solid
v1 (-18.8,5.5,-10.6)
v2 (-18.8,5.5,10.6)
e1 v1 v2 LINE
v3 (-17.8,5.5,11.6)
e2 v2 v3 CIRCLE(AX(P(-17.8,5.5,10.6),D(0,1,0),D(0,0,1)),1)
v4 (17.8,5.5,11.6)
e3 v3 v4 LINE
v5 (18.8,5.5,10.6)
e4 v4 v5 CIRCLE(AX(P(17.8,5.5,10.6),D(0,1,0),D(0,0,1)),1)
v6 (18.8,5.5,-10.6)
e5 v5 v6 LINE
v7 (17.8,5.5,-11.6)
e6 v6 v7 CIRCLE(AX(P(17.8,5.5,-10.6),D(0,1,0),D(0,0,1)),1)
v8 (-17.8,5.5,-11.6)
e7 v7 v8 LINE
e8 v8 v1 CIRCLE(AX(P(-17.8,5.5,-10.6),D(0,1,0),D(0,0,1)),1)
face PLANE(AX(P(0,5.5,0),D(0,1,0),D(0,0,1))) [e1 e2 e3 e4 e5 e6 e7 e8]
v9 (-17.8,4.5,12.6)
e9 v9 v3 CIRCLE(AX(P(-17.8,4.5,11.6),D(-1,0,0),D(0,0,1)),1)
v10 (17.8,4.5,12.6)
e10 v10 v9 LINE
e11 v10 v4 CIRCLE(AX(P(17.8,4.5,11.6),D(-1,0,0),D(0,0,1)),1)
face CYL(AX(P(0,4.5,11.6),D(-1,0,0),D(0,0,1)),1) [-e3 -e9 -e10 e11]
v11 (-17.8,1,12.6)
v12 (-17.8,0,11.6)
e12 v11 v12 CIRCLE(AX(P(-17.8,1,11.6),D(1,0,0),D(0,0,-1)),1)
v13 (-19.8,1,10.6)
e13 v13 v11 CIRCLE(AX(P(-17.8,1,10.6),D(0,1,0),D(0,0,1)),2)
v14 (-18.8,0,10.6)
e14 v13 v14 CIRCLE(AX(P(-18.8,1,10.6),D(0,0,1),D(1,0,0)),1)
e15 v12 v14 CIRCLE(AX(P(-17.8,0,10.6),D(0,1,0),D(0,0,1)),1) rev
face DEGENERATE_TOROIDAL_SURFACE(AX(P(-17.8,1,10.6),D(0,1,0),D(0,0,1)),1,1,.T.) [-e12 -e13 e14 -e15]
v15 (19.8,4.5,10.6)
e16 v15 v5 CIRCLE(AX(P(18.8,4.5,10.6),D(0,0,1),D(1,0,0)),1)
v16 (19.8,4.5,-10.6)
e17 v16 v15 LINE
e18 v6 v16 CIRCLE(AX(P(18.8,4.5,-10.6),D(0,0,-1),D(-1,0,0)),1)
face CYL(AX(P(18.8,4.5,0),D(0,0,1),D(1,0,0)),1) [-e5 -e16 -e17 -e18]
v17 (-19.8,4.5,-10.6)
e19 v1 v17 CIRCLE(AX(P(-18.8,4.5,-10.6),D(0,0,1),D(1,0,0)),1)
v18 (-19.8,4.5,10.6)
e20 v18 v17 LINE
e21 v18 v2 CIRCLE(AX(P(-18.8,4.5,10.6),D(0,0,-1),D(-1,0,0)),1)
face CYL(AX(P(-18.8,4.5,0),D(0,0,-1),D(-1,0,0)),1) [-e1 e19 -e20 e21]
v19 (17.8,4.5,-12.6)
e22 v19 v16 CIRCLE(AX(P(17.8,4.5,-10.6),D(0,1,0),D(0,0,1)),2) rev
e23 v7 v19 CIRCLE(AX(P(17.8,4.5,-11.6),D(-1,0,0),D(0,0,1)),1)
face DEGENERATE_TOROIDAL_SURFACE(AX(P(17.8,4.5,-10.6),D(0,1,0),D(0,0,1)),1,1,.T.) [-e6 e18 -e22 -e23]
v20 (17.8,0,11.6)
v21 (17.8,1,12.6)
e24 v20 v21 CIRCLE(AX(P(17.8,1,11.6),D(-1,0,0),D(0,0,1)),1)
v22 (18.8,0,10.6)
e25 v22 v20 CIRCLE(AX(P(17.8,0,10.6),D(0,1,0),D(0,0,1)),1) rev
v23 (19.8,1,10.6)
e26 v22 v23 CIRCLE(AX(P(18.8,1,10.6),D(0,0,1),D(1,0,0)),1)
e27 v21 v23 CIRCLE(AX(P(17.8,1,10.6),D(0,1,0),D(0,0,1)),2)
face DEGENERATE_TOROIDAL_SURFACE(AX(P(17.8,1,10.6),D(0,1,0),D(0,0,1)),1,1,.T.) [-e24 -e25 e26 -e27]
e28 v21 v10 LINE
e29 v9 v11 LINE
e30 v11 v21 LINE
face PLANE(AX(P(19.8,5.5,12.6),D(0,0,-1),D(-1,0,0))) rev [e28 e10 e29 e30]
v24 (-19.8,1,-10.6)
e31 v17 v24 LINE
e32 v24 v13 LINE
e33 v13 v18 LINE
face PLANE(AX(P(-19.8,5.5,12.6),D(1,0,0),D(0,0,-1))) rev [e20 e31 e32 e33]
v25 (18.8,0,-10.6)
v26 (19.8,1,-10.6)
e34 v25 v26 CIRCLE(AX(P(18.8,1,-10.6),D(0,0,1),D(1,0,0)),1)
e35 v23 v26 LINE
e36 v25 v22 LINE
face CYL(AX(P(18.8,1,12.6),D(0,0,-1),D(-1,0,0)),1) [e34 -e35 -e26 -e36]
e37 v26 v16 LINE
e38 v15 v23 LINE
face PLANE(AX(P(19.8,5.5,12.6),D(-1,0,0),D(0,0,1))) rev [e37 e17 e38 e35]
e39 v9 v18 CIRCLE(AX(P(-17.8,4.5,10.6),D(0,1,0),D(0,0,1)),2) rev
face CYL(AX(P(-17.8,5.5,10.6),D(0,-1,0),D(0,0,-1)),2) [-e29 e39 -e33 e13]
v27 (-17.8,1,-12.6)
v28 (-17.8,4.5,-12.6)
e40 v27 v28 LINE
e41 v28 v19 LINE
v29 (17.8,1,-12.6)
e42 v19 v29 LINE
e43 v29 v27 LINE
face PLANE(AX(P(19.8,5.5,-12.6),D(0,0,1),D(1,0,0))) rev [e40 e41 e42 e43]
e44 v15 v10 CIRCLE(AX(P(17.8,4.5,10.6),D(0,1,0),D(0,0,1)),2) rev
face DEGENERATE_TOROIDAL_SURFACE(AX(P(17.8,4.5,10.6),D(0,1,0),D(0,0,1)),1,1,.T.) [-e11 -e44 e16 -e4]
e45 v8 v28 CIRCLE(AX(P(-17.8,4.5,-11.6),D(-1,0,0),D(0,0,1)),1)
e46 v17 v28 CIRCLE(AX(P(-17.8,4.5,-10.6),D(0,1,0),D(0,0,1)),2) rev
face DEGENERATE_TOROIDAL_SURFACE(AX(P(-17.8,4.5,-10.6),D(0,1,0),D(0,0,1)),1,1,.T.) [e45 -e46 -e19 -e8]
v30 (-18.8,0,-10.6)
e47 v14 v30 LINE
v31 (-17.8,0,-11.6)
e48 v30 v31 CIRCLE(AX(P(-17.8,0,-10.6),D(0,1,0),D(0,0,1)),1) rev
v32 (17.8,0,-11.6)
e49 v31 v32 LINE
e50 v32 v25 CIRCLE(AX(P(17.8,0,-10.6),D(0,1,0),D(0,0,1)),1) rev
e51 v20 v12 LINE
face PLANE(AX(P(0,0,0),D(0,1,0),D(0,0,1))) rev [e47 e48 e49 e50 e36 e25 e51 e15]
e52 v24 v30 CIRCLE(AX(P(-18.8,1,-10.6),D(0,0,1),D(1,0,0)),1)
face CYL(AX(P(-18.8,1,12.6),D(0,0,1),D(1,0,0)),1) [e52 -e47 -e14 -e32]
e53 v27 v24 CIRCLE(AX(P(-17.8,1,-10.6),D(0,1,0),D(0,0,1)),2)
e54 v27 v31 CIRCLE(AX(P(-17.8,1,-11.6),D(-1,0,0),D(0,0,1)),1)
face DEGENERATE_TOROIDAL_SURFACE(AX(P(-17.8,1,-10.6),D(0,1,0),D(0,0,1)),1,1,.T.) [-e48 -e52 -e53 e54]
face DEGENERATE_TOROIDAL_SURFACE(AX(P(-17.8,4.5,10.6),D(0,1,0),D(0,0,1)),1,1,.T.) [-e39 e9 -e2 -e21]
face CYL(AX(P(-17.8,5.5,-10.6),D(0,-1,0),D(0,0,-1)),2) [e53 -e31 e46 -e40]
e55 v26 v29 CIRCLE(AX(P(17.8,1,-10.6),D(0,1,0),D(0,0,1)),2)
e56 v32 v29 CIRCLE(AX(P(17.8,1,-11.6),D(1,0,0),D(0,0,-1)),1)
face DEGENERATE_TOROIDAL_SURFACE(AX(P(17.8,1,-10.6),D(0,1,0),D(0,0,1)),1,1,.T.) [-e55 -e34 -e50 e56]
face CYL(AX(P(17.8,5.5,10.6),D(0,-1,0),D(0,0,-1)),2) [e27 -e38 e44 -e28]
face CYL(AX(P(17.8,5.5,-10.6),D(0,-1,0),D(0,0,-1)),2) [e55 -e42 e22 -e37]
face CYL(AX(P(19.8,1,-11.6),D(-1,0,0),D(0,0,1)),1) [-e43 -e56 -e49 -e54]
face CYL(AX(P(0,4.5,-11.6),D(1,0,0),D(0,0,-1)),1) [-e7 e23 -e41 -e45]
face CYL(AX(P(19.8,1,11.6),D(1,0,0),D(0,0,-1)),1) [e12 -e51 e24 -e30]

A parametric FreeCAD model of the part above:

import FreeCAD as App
import Part
import Sketcher
from FreeCAD import Vector


def edges_at(feature, points):
    """Names of the edges that pass closest to the given points."""
    edges = feature.Shape.Edges
    near = lambda p: min(range(len(edges)), key=lambda i: edges[i].distToShape(Part.Vertex(*p))[0])
    return sorted({f"Edge{near(p) + 1}" for p in points})

doc = App.newDocument("Part")
body = doc.addObject("PartDesign::Body", "Body")

# Sketch on XZ plane
sketch1 = doc.addObject("Sketcher::SketchObject", "Sketch")
body.addObject(sketch1)
sketch1.AttachmentSupport = (doc.XZ_Plane, [""])
sketch1.MapMode = "FlatFace"
sketch1.addGeometry([
    Part.LineSegment(Vector(-19.8, -12.6, 0), Vector(-19.8, 12.6, 0)),
    Part.LineSegment(Vector(-19.8, 12.6, 0), Vector(19.8, 12.6, 0)),
    Part.LineSegment(Vector(19.8, 12.6, 0), Vector(19.8, -12.6, 0)),
    Part.LineSegment(Vector(19.8, -12.6, 0), Vector(-19.8, -12.6, 0)),
], False)
sketch1.addConstraint([
    Sketcher.Constraint("Coincident", 0, 2, 1, 1),
    Sketcher.Constraint("Coincident", 1, 2, 2, 1),
    Sketcher.Constraint("Coincident", 2, 2, 3, 1),
    Sketcher.Constraint("Coincident", 3, 2, 0, 1),
    Sketcher.Constraint("Vertical", 0),
    Sketcher.Constraint("Horizontal", 1),
    Sketcher.Constraint("Vertical", 2),
    Sketcher.Constraint("Horizontal", 3),
    Sketcher.Constraint("Symmetric", 0, 2, 2, 2, -1, 1),
    Sketcher.Constraint("DistanceX", 1, 1, 1, 2, 39.6),
    Sketcher.Constraint("DistanceY", 0, 1, 0, 2, 25.2),
])
pad1 = doc.addObject("PartDesign::Pad", "Pad")
body.addObject(pad1)
pad1.Profile = sketch1
pad1.Length = 5.5
pad1.Reversed = True
doc.recompute()

fillet = doc.addObject("PartDesign::Fillet", "Fillet")
body.addObject(fillet)
fillet.Base = (pad1, edges_at(pad1, [(-19.8, 2.75, 12.6)]))
fillet.Radius = 2
doc.recompute()

fillet2 = doc.addObject("PartDesign::Fillet", "Fillet001")
body.addObject(fillet2)
fillet2.Base = (fillet, edges_at(fillet, [(19.8, 2.75, 12.6)]))
fillet2.Radius = 2
doc.recompute()

fillet3 = doc.addObject("PartDesign::Fillet", "Fillet002")
body.addObject(fillet3)
fillet3.Base = (fillet2, edges_at(fillet2, [(19.8, 2.75, -12.6)]))
fillet3.Radius = 2
doc.recompute()

fillet4 = doc.addObject("PartDesign::Fillet", "Fillet003")
body.addObject(fillet4)
fillet4.Base = (fillet3, edges_at(fillet3, [(-19.8, 2.75, -12.6)]))
fillet4.Radius = 2
doc.recompute()

fillet5 = doc.addObject("PartDesign::Fillet", "Fillet004")
body.addObject(fillet5)
fillet5.Base = (fillet4, edges_at(fillet4, [
    (0, 0, 12.6),
    (0, 5.5, 12.6),
    (-19.214, 0, 12.014),
    (-19.214, 5.5, 12.014),
    (19.8, 0, 0),
    (19.8, 5.5, 0),
    (19.214, 0, 12.014),
    (19.214, 5.5, 12.014),
    (0, 0, -12.6),
    (0, 5.5, -12.6),
    (19.214, 0, -12.014),
    (19.214, 5.5, -12.014),
    (-19.8, 0, 0),
    (-19.8, 5.5, 0),
    (-19.214, 0, -12.014),
    (-19.214, 5.5, -12.014),
]))
fillet5.Radius = 1

doc.recompute()
